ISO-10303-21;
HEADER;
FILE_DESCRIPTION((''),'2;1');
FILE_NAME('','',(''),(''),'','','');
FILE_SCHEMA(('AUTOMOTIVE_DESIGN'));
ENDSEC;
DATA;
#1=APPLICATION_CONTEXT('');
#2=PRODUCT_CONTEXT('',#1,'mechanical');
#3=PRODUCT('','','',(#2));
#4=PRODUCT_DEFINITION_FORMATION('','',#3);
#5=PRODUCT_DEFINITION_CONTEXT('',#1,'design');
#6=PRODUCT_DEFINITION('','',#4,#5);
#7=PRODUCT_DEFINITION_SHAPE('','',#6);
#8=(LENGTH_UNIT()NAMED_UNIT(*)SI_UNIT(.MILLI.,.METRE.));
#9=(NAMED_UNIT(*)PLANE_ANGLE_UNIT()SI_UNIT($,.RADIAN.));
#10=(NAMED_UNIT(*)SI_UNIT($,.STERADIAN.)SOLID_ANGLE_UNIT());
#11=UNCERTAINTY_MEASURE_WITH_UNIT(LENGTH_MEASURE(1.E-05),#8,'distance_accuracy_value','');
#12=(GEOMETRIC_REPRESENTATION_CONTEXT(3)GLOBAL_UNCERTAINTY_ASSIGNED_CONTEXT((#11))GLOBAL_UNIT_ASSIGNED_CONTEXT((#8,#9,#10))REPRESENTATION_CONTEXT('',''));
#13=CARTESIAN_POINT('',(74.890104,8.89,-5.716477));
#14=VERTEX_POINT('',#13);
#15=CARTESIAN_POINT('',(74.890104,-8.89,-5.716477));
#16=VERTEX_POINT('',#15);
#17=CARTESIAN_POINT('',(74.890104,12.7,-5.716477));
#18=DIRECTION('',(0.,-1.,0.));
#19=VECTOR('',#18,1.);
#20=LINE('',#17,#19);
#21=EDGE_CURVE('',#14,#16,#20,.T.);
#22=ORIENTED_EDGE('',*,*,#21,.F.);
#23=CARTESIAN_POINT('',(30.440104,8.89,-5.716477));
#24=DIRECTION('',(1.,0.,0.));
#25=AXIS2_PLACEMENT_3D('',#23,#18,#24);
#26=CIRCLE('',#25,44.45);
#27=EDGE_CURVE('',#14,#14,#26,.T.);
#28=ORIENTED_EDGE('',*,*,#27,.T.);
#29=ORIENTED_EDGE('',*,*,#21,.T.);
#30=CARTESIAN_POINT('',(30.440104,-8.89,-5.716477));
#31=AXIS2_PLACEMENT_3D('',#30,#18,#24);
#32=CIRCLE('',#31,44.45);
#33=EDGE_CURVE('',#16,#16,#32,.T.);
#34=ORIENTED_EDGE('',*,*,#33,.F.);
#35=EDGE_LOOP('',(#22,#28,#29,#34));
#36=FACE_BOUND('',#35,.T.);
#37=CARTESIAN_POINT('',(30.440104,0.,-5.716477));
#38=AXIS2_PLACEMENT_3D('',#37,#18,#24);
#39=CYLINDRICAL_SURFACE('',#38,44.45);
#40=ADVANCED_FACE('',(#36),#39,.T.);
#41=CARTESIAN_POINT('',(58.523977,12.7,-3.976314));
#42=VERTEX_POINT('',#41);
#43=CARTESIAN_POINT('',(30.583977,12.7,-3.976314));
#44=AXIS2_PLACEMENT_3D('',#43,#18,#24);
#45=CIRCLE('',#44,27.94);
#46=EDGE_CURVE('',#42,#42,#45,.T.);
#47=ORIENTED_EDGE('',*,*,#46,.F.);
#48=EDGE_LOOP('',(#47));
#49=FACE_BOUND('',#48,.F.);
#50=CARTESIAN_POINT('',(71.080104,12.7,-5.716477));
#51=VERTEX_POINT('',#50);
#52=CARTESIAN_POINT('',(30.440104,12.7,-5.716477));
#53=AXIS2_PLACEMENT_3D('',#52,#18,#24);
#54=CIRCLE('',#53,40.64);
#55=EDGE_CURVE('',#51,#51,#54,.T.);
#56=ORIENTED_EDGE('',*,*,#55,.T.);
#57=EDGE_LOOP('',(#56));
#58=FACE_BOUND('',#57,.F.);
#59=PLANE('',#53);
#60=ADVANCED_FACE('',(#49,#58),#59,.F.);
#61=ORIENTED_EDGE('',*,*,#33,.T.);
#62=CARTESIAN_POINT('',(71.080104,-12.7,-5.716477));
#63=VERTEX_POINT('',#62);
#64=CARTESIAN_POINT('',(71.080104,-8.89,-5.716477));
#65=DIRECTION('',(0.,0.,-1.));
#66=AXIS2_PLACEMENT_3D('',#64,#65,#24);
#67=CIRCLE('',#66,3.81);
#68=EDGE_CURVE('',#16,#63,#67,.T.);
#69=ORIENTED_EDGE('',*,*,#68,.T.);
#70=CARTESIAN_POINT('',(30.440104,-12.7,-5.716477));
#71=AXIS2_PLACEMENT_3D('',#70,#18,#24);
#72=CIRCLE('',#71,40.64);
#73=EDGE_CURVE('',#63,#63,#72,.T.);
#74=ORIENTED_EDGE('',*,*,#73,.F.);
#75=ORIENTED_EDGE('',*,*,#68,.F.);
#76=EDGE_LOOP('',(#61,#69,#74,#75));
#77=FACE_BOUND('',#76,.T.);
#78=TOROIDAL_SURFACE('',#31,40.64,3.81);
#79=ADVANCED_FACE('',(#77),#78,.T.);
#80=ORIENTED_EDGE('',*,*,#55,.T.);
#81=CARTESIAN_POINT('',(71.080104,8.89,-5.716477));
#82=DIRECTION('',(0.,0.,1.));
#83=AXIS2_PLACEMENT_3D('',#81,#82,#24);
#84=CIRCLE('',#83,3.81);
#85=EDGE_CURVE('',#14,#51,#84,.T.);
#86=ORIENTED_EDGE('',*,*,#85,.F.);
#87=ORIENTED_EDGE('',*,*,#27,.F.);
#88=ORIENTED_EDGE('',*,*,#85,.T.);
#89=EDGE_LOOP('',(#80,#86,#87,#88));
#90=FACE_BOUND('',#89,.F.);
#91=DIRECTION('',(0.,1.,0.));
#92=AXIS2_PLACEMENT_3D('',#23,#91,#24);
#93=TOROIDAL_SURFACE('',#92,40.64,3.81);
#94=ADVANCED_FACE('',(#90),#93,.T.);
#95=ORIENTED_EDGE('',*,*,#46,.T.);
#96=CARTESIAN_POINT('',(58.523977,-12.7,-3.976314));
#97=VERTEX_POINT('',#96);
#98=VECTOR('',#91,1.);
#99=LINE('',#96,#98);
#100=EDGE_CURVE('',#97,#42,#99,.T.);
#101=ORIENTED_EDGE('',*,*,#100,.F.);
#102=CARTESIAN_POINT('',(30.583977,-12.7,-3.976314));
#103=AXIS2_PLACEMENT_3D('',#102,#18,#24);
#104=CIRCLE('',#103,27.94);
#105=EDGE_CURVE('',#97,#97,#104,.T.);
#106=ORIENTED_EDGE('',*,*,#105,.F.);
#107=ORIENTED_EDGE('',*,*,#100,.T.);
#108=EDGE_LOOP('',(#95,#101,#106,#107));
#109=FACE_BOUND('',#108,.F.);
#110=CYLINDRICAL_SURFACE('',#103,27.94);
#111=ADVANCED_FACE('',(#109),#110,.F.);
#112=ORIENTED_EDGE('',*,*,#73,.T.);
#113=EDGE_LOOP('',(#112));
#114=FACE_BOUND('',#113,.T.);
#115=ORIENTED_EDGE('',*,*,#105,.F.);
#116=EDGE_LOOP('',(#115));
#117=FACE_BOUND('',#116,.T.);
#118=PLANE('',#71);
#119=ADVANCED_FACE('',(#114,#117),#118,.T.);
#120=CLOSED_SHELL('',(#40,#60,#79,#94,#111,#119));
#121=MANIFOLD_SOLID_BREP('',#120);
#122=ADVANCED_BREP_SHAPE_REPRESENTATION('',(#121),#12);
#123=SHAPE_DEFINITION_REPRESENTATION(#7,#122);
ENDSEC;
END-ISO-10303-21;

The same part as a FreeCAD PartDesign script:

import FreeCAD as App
import Part
import Sketcher
from FreeCAD import Vector
Q = App.Units.Quantity


def edges_at(feature, points):
    """Names of the edges that pass closest to the given points."""
    edges = feature.Shape.Edges
    near = lambda p: min(range(len(edges)), key=lambda i: edges[i].distToShape(Part.Vertex(*p))[0])
    return sorted({f"Edge{near(p) + 1}" for p in points})

doc = App.newDocument("Part")
body = doc.addObject("PartDesign::Body", "Body")

# Sketch on XZ plane
sketch1 = body.newObject("Sketcher::SketchObject", "Sketch")
sketch1.AttachmentSupport = (doc.getObject("XZ_Plane"), [""])
sketch1.MapMode = "FlatFace"
sketch1.addGeometry(Part.Circle(Vector(30, -6, 0), Vector(0, 0, 1), 44), False)
sketch1.addConstraint([
    Sketcher.Constraint("Diameter", 0, Q("3.5 in")),
    Sketcher.Constraint("DistanceX", -1, 1, 0, 3, 30.440104),
    Sketcher.Constraint("DistanceY", 0, 3, -1, 1, 5.716477),
])
pad1 = body.newObject("PartDesign::Pad", "Pad")
pad1.Profile = sketch1
pad1.Length = Q("1 in")
pad1.Midplane = True
doc.recompute()

fillet = body.newObject("PartDesign::Fillet", "Fillet")
fillet.Base = (pad1, edges_at(pad1, [(-14.01, -12.7, -5.716), (-14.01, 12.7, -5.716)]))
fillet.Radius = Q("0.15 in")

# Sketch on XZ plane
sketch2 = body.newObject("Sketcher::SketchObject", "Sketch001")
sketch2.AttachmentSupport = (doc.getObject("XZ_Plane"), [""])
sketch2.MapMode = "FlatFace"
sketch2.AttachmentOffset = App.Placement(Vector(0, 0, 0.5 * 25.4), App.Rotation())
sketch2.addGeometry(Part.Circle(Vector(31, -4, 0), Vector(0, 0, 1), 28), False)
sketch2.addConstraint([
    Sketcher.Constraint("Diameter", 0, Q("2.2 in")),
    Sketcher.Constraint("DistanceX", -1, 1, 0, 3, 30.583977),
    Sketcher.Constraint("DistanceY", 0, 3, -1, 1, 3.976314),
])
pocket1 = body.newObject("PartDesign::Pocket", "Pocket")
pocket1.Profile = sketch2
pocket1.Type = "ThroughAll"

doc.recompute()
